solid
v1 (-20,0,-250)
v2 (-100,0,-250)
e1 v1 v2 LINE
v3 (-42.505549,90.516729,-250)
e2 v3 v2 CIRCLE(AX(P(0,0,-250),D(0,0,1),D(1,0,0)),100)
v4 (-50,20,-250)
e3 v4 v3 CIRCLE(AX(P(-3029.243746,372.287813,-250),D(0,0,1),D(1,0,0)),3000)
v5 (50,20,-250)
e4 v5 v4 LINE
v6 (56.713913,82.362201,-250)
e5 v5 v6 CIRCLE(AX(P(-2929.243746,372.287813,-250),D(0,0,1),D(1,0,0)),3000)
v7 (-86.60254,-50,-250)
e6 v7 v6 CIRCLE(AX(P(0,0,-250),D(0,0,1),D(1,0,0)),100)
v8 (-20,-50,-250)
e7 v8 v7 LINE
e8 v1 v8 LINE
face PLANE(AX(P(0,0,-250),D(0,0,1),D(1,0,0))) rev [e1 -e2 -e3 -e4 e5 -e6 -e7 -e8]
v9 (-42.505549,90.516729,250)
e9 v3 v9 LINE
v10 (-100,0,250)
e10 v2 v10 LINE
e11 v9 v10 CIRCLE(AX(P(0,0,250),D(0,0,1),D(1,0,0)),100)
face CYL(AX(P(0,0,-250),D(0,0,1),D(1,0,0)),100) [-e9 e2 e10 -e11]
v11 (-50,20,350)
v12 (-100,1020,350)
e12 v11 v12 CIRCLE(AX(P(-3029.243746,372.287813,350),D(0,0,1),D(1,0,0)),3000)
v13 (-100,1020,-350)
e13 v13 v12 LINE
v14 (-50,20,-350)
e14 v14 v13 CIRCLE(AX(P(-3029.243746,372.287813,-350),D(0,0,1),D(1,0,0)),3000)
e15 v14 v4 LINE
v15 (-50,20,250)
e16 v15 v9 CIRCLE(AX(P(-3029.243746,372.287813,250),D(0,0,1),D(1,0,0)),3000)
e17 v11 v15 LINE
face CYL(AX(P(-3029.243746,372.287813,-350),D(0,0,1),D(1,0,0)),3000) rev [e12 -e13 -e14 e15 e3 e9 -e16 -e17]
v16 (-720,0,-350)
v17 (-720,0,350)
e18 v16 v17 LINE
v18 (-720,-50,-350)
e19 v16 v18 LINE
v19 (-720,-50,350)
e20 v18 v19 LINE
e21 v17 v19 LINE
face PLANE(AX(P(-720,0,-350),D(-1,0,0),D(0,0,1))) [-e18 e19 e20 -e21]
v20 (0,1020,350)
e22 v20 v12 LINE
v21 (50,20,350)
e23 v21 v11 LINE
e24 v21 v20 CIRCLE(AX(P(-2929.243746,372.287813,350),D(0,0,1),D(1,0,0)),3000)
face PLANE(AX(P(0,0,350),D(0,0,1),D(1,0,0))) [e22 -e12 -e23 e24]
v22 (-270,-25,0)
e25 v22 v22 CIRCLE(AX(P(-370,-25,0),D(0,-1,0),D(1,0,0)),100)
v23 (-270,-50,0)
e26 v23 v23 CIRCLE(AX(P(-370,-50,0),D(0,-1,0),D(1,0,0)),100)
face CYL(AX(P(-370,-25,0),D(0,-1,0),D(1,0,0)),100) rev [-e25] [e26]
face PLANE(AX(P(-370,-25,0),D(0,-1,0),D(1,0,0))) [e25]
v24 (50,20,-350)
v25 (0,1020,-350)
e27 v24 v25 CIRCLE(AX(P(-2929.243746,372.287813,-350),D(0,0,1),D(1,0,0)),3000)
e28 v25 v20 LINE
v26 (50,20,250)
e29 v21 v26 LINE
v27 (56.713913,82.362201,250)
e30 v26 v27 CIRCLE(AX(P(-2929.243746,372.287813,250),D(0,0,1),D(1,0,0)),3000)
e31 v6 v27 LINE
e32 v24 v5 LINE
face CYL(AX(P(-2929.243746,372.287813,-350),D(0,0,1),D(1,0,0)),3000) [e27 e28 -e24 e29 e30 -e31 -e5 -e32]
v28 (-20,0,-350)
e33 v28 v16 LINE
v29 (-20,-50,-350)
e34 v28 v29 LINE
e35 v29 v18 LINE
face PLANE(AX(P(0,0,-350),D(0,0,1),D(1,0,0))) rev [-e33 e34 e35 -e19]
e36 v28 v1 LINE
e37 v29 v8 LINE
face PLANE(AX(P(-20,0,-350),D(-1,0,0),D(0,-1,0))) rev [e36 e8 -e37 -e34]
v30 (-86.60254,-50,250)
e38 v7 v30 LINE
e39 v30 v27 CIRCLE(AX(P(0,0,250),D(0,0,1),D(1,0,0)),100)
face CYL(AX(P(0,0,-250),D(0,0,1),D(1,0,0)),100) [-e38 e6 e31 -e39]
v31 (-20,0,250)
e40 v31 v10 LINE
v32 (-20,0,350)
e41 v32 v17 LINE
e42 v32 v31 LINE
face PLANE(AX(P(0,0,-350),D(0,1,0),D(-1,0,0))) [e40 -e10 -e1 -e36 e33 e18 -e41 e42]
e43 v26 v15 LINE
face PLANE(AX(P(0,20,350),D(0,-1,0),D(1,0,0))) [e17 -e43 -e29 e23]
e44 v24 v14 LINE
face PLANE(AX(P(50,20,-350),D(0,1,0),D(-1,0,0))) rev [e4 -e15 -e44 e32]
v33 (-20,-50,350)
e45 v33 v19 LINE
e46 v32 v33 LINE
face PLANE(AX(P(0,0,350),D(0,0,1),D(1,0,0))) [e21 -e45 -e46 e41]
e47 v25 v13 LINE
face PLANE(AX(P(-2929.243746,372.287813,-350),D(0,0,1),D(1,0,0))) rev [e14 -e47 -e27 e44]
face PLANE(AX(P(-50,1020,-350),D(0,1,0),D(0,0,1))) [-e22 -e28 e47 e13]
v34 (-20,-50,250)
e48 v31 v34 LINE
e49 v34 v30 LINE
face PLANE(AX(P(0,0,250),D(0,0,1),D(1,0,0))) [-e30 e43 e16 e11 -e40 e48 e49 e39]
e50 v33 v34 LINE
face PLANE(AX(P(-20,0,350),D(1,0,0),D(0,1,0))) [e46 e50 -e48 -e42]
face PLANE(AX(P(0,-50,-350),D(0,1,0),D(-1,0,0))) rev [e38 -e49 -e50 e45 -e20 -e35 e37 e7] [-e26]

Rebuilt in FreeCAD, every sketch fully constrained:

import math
import FreeCAD as App
import Part
import Sketcher

V = App.Vector
Q = App.Units.Quantity

doc = App.newDocument("Part")
params = doc.addObject("Spreadsheet::Sheet", "Params")
for row, (alias, value) in enumerate([
    ("sketch1_radius", "3000 mm"),
    ("sketch1_width", "700 mm"),
    ("sketch1_width2", "100 mm"),
    ("sketch1_height", "50 mm"),
    ("pad1_length", "350 mm"),
    ("sketch2_radius", "100 mm"),
    ("sketch2_width", "50 mm"),
    ("sketch2_width2", "80 mm"),
    ("pad2_length", "250 mm"),
    ("sketch3_radius", "100 mm"),
    ("sketch3_radius2", "2999.999999 mm"),
    ("sketch3_width", "100 mm"),
    ("sketch3_width2", "80 mm"),
    ("sketch3_height", "50 mm"),
    ("pad3_length", "250 mm"),
    ("sketch4_radius", "3000 mm"),
    ("sketch4_width", "100 mm"),
    ("sketch4_width2", "700 mm"),
    ("sketch4_height", "50 mm"),
    ("pad4_length", "350 mm"),
    ("sketch5_diameter", "200 mm"),
    ("pocket1_length", "25 mm"),
], start=1):
    params.set(f"A{row}", alias)
    params.set(f"B{row}", "=" + value)
    params.setAlias(f"B{row}", alias)

body = doc.addObject("PartDesign::Body", "Body")
body.AllowCompound = True

# Sketch on XY plane
sketch1 = doc.addObject("Sketcher::SketchObject", "Sketch")
body.addObject(sketch1)
sketch1.AttachmentSupport = (doc.XY_Plane, [""])
sketch1.MapMode = "FlatFace"
sketch1.addGeometry([
    Part.LineSegment(V(-720, 0, 0), V(-720, -50, 0)),  # 0
    Part.LineSegment(V(-720, -50, 0), V(-20, -50, 0)),  # 1
    Part.LineSegment(V(-20, -50, 0), V(-20, 0, 0)),  # 2
    Part.LineSegment(V(-20, 0, 0), V(-720, 0, 0)),  # 3
    Part.LineSegment(V(0, 1020, 0), V(-100, 1020, 0)),  # 4
    Part.ArcOfCircle(Part.Circle(V(-3029.243746, 372.287813, 0), V(0, 0, 1), 3000), math.radians(-6.743762), math.radians(12.468572)),  # 5
    Part.LineSegment(V(-50, 20, 0), V(50, 20, 0)),  # 6
    Part.ArcOfCircle(Part.Circle(V(-2929.243746, 372.287813, 0), V(0, 0, 1), 3000), math.radians(-6.743762), math.radians(12.468572)),  # 7
], False)
sketch1.addConstraint([
    Sketcher.Constraint("Coincident", 0, 2, 1, 1),
    Sketcher.Constraint("Coincident", 1, 2, 2, 1),
    Sketcher.Constraint("Coincident", 2, 2, 3, 1),
    Sketcher.Constraint("Coincident", 3, 2, 0, 1),
    Sketcher.Constraint("Coincident", 4, 2, 5, 2),
    Sketcher.Constraint("Coincident", 5, 1, 6, 1),
    Sketcher.Constraint("Coincident", 6, 2, 7, 1),
    Sketcher.Constraint("Coincident", 7, 2, 4, 1),
    Sketcher.Constraint("Vertical", 0),
    Sketcher.Constraint("Horizontal", 1),
    Sketcher.Constraint("Vertical", 2),
    Sketcher.Constraint("Horizontal", 3),
    Sketcher.Constraint("Horizontal", 4),
    Sketcher.Constraint("Horizontal", 6),
    Sketcher.Constraint("Equal", 5, 7),
    Sketcher.Constraint("PointOnObject", 2, 2, -1),
    Sketcher.Constraint("Horizontal", 5, 3, 7, 3),
    Sketcher.Constraint("Radius", 5, Q("3000 mm")),
    Sketcher.Constraint("DistanceX", 1, 1, 1, 2, Q("700 mm")),
    Sketcher.Constraint("DistanceX", 4, 2, 4, 1, Q("100 mm")),
    Sketcher.Constraint("DistanceY", 0, 2, 0, 1, Q("50 mm")),
    Sketcher.Constraint("DistanceX", 0, 2, -1, 1, Q("720 mm")),
    Sketcher.Constraint("DistanceX", 4, 2, -1, 1, Q("100 mm")),
    Sketcher.Constraint("DistanceY", -1, 1, 4, 2, Q("1020 mm")),
    Sketcher.Constraint("DistanceX", -1, 1, 6, 2, Q("50 mm")),
    Sketcher.Constraint("DistanceY", -1, 1, 6, 2, Q("20 mm")),
])
sketch1.setExpression("Constraints[17]", "Params.sketch1_radius")
sketch1.setExpression("Constraints[18]", "Params.sketch1_width")
sketch1.setExpression("Constraints[19]", "Params.sketch1_width2")
sketch1.setExpression("Constraints[20]", "Params.sketch1_height")
pad1 = doc.addObject("PartDesign::Pad", "Pad")
body.addObject(pad1)
pad1.Profile = sketch1
pad1.setExpression("Length", "Params.pad1_length")
pad1.Reversed = True

# Sketch on XY plane
sketch2 = doc.addObject("Sketcher::SketchObject", "Sketch001")
body.addObject(sketch2)
sketch2.AttachmentSupport = (doc.XY_Plane, [""])
sketch2.MapMode = "FlatFace"
sketch2.addGeometry([
    Part.ArcOfCircle(Part.Circle(V(0, 0, 0), V(0, 0, 1), 100), math.radians(-90), math.radians(0)),  # 0
    Part.ArcOfCircle(Part.Circle(V(0, 0, 0), V(0, 0, 1), 100), math.radians(0), math.radians(55.449032)),  # 1
    Part.ArcOfCircle(Part.Circle(V(0, 0, 0), V(0, 0, 1), 100), math.radians(55.449032), math.radians(90)),  # 2
    Part.LineSegment(V(0, 100, 0), V(0, 20, 0)),  # 3
    Part.LineSegment(V(0, 20, 0), V(-50, 20, 0)),  # 4
    Part.ArcOfCircle(Part.Circle(V(-3029.24375, 372.287813, 0), V(0, 0, 1), 3000.000004), math.radians(-6.743762), math.radians(-5.389375)),  # 5
    Part.ArcOfCircle(Part.Circle(V(0, 0, 0), V(0, 0, 1), 100), math.radians(115.154176), math.radians(180)),  # 6
    Part.LineSegment(V(-100, 0, 0), V(-20, 0, 0)),  # 7
    Part.LineSegment(V(-20, 0, 0), V(-20, -50, 0)),  # 8
    Part.LineSegment(V(-20, -50, 0), V(-86.60254, -50, 0)),  # 9
    Part.ArcOfCircle(Part.Circle(V(0, 0, 0), V(0, 0, 1), 100), math.radians(-150), math.radians(-90)),  # 10
], False)
sketch2.addConstraint([
    Sketcher.Constraint("Tangent", 0, 2, 1, 1),
    Sketcher.Constraint("Tangent", 1, 2, 2, 1),
    Sketcher.Constraint("Coincident", 2, 2, 3, 1),
    Sketcher.Constraint("Coincident", 3, 2, 4, 1),
    Sketcher.Constraint("Coincident", 4, 2, 5, 1),
    Sketcher.Constraint("Coincident", 5, 2, 6, 1),
    Sketcher.Constraint("Coincident", 6, 2, 7, 1),
    Sketcher.Constraint("Coincident", 7, 2, 8, 1),
    Sketcher.Constraint("Coincident", 8, 2, 9, 1),
    Sketcher.Constraint("Coincident", 9, 2, 10, 1),
    Sketcher.Constraint("Tangent", 10, 2, 0, 1),
    Sketcher.Constraint("Vertical", 3),
    Sketcher.Constraint("Horizontal", 4),
    Sketcher.Constraint("Horizontal", 7),
    Sketcher.Constraint("Vertical", 8),
    Sketcher.Constraint("Horizontal", 9),
    Sketcher.Constraint("Coincident", 0, 3, -1, 1),
    Sketcher.Constraint("Coincident", 2, 3, -1, 1),
    Sketcher.Constraint("Coincident", 6, 3, -1, 1),
    Sketcher.Constraint("Equal", 2, 6),
    Sketcher.Constraint("Equal", 6, 10),
    Sketcher.Constraint("PointOnObject", 0, 2, -1),
    Sketcher.Constraint("PointOnObject", 2, 2, -2),
    Sketcher.Constraint("PointOnObject", 6, 2, -1),
    Sketcher.Constraint("PointOnObject", 10, 2, -2),
    Sketcher.Constraint("Equal", 7, 3),
    Sketcher.Constraint("Equal", 4, 8),
    Sketcher.Constraint("Radius", 0, Q("100 mm")),
    Sketcher.Constraint("DistanceX", 4, 2, 4, 1, Q("50 mm")),
    Sketcher.Constraint("DistanceX", 7, 1, 7, 2, Q("80 mm")),
    Sketcher.Constraint("Radius", 5, Q("3000.000004 mm")),
    Sketcher.Constraint("DistanceY", -1, 1, 1, 2, Q("82.362201 mm")),
    Sketcher.Constraint("DistanceX", 5, 3, -1, 1, Q("3029.24375 mm")),
])
sketch2.setExpression("Constraints[27]", "Params.sketch2_radius")
sketch2.setExpression("Constraints[28]", "Params.sketch2_width")
sketch2.setExpression("Constraints[29]", "Params.sketch2_width2")
pad2 = doc.addObject("PartDesign::Pad", "Pad001")
body.addObject(pad2)
pad2.Profile = sketch2
pad2.setExpression("Length", "Params.pad2_length")
pad2.Reversed = True

# Sketch on XY plane
sketch3 = doc.addObject("Sketcher::SketchObject", "Sketch002")
body.addObject(sketch3)
sketch3.AttachmentSupport = (doc.XY_Plane, [""])
sketch3.MapMode = "FlatFace"
sketch3.AttachmentOffset = App.Placement(V(0, 0, 250), App.Rotation())
sketch3.addGeometry([
    Part.ArcOfCircle(Part.Circle(V(0, 0, 0), V(0, 0, 1), 100), math.radians(-150), math.radians(55.449032)),  # 0
    Part.ArcOfCircle(Part.Circle(V(-2929.243745, 372.287813, 0), V(0, 0, 1), 2999.999999), math.radians(-6.743762), math.radians(-5.545827)),  # 1
    Part.LineSegment(V(50, 20, 0), V(-50, 20, 0)),  # 2
    Part.ArcOfCircle(Part.Circle(V(-3029.24375, 372.287813, 0), V(0, 0, 1), 3000.000004), math.radians(-6.743762), math.radians(-5.389375)),  # 3
    Part.ArcOfCircle(Part.Circle(V(0, 0, 0), V(0, 0, 1), 100), math.radians(115.154176), math.radians(180)),  # 4
    Part.LineSegment(V(-100, 0, 0), V(-20, 0, 0)),  # 5
    Part.LineSegment(V(-20, 0, 0), V(-20, -50, 0)),  # 6
    Part.LineSegment(V(-20, -50, 0), V(-86.60254, -50, 0)),  # 7
], False)
sketch3.addConstraint([
    Sketcher.Constraint("Coincident", 0, 2, 1, 2),
    Sketcher.Constraint("Coincident", 1, 1, 2, 1),
    Sketcher.Constraint("Coincident", 2, 2, 3, 1),
    Sketcher.Constraint("Coincident", 3, 2, 4, 1),
    Sketcher.Constraint("Coincident", 4, 2, 5, 1),
    Sketcher.Constraint("Coincident", 5, 2, 6, 1),
    Sketcher.Constraint("Coincident", 6, 2, 7, 1),
    Sketcher.Constraint("Coincident", 7, 2, 0, 1),
    Sketcher.Constraint("Horizontal", 2),
    Sketcher.Constraint("Horizontal", 5),
    Sketcher.Constraint("Vertical", 6),
    Sketcher.Constraint("Horizontal", 7),
    Sketcher.Constraint("Coincident", 0, 3, -1, 1),
    Sketcher.Constraint("Coincident", 4, 3, -1, 1),
    Sketcher.Constraint("Equal", 0, 4),
    Sketcher.Constraint("PointOnObject", 4, 2, -1),
    Sketcher.Constraint("Horizontal", 1, 3, 3, 3),
    Sketcher.Constraint("Radius", 0, Q("100 mm")),
    Sketcher.Constraint("Radius", 1, Q("2999.999999 mm")),
    Sketcher.Constraint("DistanceX", 2, 2, 2, 1, Q("100 mm")),
    Sketcher.Constraint("DistanceX", 5, 1, 5, 2, Q("80 mm")),
    Sketcher.Constraint("DistanceY", 6, 2, 6, 1, Q("50 mm")),
    Sketcher.Constraint("DistanceX", 2, 2, -1, 1, Q("50 mm")),
    Sketcher.Constraint("DistanceY", -1, 1, 2, 2, Q("20 mm")),
    Sketcher.Constraint("Radius", 3, Q("3000.000004 mm")),
    Sketcher.Constraint("DistanceX", 3, 3, -1, 1, Q("3029.24375 mm")),
])
sketch3.setExpression("Constraints[17]", "Params.sketch3_radius")
sketch3.setExpression("Constraints[18]", "Params.sketch3_radius2")
sketch3.setExpression("Constraints[19]", "Params.sketch3_width")
sketch3.setExpression("Constraints[20]", "Params.sketch3_width2")
sketch3.setExpression("Constraints[21]", "Params.sketch3_height")
pad3 = doc.addObject("PartDesign::Pad", "Pad002")
body.addObject(pad3)
pad3.Profile = sketch3
pad3.setExpression("Length", "Params.pad3_length")
pad3.Reversed = True

# Sketch on XY plane
sketch4 = doc.addObject("Sketcher::SketchObject", "Sketch003")
body.addObject(sketch4)
sketch4.AttachmentSupport = (doc.XY_Plane, [""])
sketch4.MapMode = "FlatFace"
sketch4.AttachmentOffset = App.Placement(V(0, 0, 350), App.Rotation())
sketch4.addGeometry([
    Part.LineSegment(V(-50, 20, 0), V(50, 20, 0)),  # 0
    Part.ArcOfCircle(Part.Circle(V(-2929.243746, 372.287813, 0), V(0, 0, 1), 3000), math.radians(-6.743762), math.radians(12.468572)),  # 1
    Part.LineSegment(V(0, 1020, 0), V(-100, 1020, 0)),  # 2
    Part.ArcOfCircle(Part.Circle(V(-3029.243746, 372.287813, 0), V(0, 0, 1), 3000), math.radians(-6.743762), math.radians(12.468572)),  # 3
    Part.LineSegment(V(-720, 0, 0), V(-720, -50, 0)),  # 4
    Part.LineSegment(V(-720, -50, 0), V(-20, -50, 0)),  # 5
    Part.LineSegment(V(-20, -50, 0), V(-20, 0, 0)),  # 6
    Part.LineSegment(V(-20, 0, 0), V(-720, 0, 0)),  # 7
], False)
sketch4.addConstraint([
    Sketcher.Constraint("Coincident", 0, 2, 1, 1),
    Sketcher.Constraint("Coincident", 1, 2, 2, 1),
    Sketcher.Constraint("Coincident", 2, 2, 3, 2),
    Sketcher.Constraint("Coincident", 3, 1, 0, 1),
    Sketcher.Constraint("Coincident", 4, 2, 5, 1),
    Sketcher.Constraint("Coincident", 5, 2, 6, 1),
    Sketcher.Constraint("Coincident", 6, 2, 7, 1),
    Sketcher.Constraint("Coincident", 7, 2, 4, 1),
    Sketcher.Constraint("Horizontal", 0),
    Sketcher.Constraint("Horizontal", 2),
    Sketcher.Constraint("Vertical", 4),
    Sketcher.Constraint("Horizontal", 5),
    Sketcher.Constraint("Vertical", 6),
    Sketcher.Constraint("Horizontal", 7),
    Sketcher.Constraint("Equal", 1, 3),
    Sketcher.Constraint("PointOnObject", 6, 2, -1),
    Sketcher.Constraint("Horizontal", 1, 3, 3, 3),
    Sketcher.Constraint("Radius", 1, Q("3000 mm")),
    Sketcher.Constraint("DistanceX", 0, 1, 0, 2, Q("100 mm")),
    Sketcher.Constraint("DistanceX", 5, 1, 5, 2, Q("700 mm")),
    Sketcher.Constraint("DistanceY", 4, 2, 4, 1, Q("50 mm")),
    Sketcher.Constraint("DistanceX", -1, 1, 0, 2, Q("50 mm")),
    Sketcher.Constraint("DistanceY", -1, 1, 0, 2, Q("20 mm")),
    Sketcher.Constraint("DistanceX", 2, 2, -1, 1, Q("100 mm")),
    Sketcher.Constraint("DistanceY", -1, 1, 2, 2, Q("1020 mm")),
    Sketcher.Constraint("DistanceX", 4, 2, -1, 1, Q("720 mm")),
])
sketch4.setExpression("Constraints[17]", "Params.sketch4_radius")
sketch4.setExpression("Constraints[18]", "Params.sketch4_width")
sketch4.setExpression("Constraints[19]", "Params.sketch4_width2")
sketch4.setExpression("Constraints[20]", "Params.sketch4_height")
pad4 = doc.addObject("PartDesign::Pad", "Pad003")
body.addObject(pad4)
pad4.Profile = sketch4
pad4.setExpression("Length", "Params.pad4_length")
pad4.Reversed = True

# Sketch on XZ plane
sketch5 = doc.addObject("Sketcher::SketchObject", "Sketch004")
body.addObject(sketch5)
sketch5.AttachmentSupport = (doc.XZ_Plane, [""])
sketch5.MapMode = "FlatFace"
sketch5.AttachmentOffset = App.Placement(V(0, 0, 50), App.Rotation())
sketch5.addGeometry(Part.Circle(V(-370, 0, 0), V(0, 0, 1), 100), False)
sketch5.addConstraint([
    Sketcher.Constraint("PointOnObject", 0, 3, -1),
    Sketcher.Constraint("Diameter", 0, Q("200 mm")),
    Sketcher.Constraint("DistanceX", 0, 3, -1, 1, Q("370 mm")),
])
sketch5.setExpression("Constraints[1]", "Params.sketch5_diameter")
pocket1 = doc.addObject("PartDesign::Pocket", "Pocket")
body.addObject(pocket1)
pocket1.Profile = sketch5
pocket1.setExpression("Length", "Params.pocket1_length")

doc.recompute()
